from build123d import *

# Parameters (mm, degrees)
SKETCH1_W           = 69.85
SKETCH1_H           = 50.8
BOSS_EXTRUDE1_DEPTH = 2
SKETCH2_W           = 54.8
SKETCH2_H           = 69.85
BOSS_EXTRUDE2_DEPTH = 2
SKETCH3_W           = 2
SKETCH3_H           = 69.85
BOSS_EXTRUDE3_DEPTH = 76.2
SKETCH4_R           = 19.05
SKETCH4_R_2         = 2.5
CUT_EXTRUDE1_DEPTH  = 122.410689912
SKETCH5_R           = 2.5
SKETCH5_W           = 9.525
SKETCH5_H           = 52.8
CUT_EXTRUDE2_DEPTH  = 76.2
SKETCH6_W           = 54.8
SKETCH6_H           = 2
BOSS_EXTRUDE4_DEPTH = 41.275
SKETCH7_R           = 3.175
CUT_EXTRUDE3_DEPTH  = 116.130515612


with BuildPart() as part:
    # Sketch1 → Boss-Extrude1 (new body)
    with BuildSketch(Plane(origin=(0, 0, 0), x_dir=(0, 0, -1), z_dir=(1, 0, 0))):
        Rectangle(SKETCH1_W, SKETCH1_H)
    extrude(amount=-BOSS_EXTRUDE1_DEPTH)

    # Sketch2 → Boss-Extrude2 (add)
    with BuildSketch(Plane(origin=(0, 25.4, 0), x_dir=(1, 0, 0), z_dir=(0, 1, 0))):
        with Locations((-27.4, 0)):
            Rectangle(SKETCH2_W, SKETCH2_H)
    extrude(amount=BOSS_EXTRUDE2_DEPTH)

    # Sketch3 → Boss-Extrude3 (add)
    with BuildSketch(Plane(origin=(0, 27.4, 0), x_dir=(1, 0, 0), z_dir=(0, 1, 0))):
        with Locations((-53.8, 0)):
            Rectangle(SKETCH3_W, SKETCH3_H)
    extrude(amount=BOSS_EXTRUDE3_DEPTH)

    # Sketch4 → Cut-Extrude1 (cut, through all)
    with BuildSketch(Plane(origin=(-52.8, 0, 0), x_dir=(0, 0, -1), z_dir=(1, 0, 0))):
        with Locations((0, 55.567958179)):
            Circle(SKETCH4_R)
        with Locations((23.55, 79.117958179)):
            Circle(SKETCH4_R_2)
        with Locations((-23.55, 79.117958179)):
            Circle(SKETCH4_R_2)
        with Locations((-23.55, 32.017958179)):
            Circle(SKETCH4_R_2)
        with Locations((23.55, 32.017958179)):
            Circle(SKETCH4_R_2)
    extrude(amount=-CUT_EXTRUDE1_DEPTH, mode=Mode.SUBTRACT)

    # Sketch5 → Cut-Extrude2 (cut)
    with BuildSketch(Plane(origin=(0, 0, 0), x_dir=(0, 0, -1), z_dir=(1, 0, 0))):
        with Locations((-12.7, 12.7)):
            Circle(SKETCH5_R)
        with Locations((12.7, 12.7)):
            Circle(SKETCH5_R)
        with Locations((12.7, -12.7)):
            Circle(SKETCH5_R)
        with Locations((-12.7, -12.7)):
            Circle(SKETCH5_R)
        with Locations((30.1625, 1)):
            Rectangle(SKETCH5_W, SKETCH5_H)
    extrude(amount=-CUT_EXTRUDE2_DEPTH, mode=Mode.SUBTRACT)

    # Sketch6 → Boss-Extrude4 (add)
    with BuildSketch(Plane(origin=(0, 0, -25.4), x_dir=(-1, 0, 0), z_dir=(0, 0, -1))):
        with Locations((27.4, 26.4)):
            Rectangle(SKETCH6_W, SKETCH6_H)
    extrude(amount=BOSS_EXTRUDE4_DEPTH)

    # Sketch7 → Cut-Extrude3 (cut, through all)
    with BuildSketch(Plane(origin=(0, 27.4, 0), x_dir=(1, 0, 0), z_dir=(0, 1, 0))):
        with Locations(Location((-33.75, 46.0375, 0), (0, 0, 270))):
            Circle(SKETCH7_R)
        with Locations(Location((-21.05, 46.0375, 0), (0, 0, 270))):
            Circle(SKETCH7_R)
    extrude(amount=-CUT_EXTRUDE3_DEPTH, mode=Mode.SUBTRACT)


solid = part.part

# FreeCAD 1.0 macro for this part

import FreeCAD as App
import Part
import Sketcher
from FreeCAD import Vector
Q = App.Units.Quantity


def add_polygon(sketch, points):
    """Adds a closed chain of lines whose ends are joined by coincident constraints."""
    first, n = sketch.GeometryCount, len(points)
    for a, b in zip(points, points[1:] + points[:1]):
        sketch.addGeometry(Part.LineSegment(App.Vector(*a, 0), App.Vector(*b, 0)), False)
    for i in range(n):
        sketch.addConstraint(Sketcher.Constraint("Coincident", first + i, 2, first + (i + 1) % n, 1))

doc = App.newDocument("Part")
body = doc.addObject("PartDesign::Body", "Body")

# Sketch on YZ plane
sketch1 = body.newObject("Sketcher::SketchObject", "Sketch")
sketch1.AttachmentSupport = (doc.getObject("YZ_Plane"), [""])
sketch1.MapMode = "FlatFace"
add_polygon(sketch1, [(25.4, 34.925), (-25.4, 34.925), (-25.4, -34.925), (25.4, -34.925)])  # lines 0-3
sketch1.addConstraint([
    Sketcher.Constraint("Horizontal", 0),
    Sketcher.Constraint("Vertical", 1),
    Sketcher.Constraint("Horizontal", 2),
    Sketcher.Constraint("Vertical", 3),
    Sketcher.Constraint("Symmetric", 0, 2, 2, 2, -1, 1),
    Sketcher.Constraint("DistanceX", 0, 2, 0, 1, Q("2 in")),
    Sketcher.Constraint("DistanceY", 1, 2, 1, 1, Q("2.75 in")),
])
pad1 = body.newObject("PartDesign::Pad", "Pad")
pad1.Profile = sketch1
pad1.Length = 2
pad1.Reversed = True

# Sketch on XZ plane
sketch2 = body.newObject("Sketcher::SketchObject", "Sketch001")
sketch2.AttachmentSupport = (doc.getObject("XZ_Plane"), [""])
sketch2.MapMode = "FlatFace"
sketch2.AttachmentOffset = App.Placement(Vector(0, 0, -1 * 25.4), App.Rotation())
add_polygon(sketch2, [(-54.8, -34.925), (-54.8, 34.925), (0, 34.925), (0, -34.925)])  # lines 0-3
sketch2.addConstraint([
    Sketcher.Constraint("Vertical", 0),
    Sketcher.Constraint("Horizontal", 1),
    Sketcher.Constraint("Vertical", 2),
    Sketcher.Constraint("Horizontal", 3),
    Sketcher.Constraint("Symmetric", 1, 2, 2, 2, -1, 1),
    Sketcher.Constraint("DistanceY", 0, 1, 0, 2, Q("2.75 in")),
    Sketcher.Constraint("DistanceX", 1, 1, 1, 2, Q("54.8 mm")),
])
pad2 = body.newObject("PartDesign::Pad", "Pad001")
pad2.Profile = sketch2
pad2.Length = 2
pad2.Reversed = True

# Sketch on XZ plane
sketch3 = body.newObject("Sketcher::SketchObject", "Sketch002")
sketch3.AttachmentSupport = (doc.getObject("XZ_Plane"), [""])
sketch3.MapMode = "FlatFace"
sketch3.AttachmentOffset = App.Placement(Vector(0, 0, -27.4), App.Rotation())
add_polygon(sketch3, [(-54.8, -34.925), (-54.8, 34.925), (-52.8, 34.925), (-52.8, -34.925)])  # lines 0-3
sketch3.addConstraint([
    Sketcher.Constraint("Vertical", 0),
    Sketcher.Constraint("Horizontal", 1),
    Sketcher.Constraint("Vertical", 2),
    Sketcher.Constraint("Horizontal", 3),
    Sketcher.Constraint("DistanceY", 0, 1, 0, 2, Q("2.75 in")),
    Sketcher.Constraint("DistanceY", -1, 1, 0, 2, Q("1.375 in")),
    Sketcher.Constraint("DistanceX", 1, 1, 1, 2, Q("2 mm")),
    Sketcher.Constraint("DistanceX", 0, 2, -1, 1, Q("54.8 mm")),
])
pad3 = body.newObject("PartDesign::Pad", "Pad002")
pad3.Profile = sketch3
pad3.Length = Q("3 in")
pad3.Reversed = True

# Sketch on YZ plane
sketch4 = body.newObject("Sketcher::SketchObject", "Sketch003")
sketch4.AttachmentSupport = (doc.getObject("YZ_Plane"), [""])
sketch4.MapMode = "FlatFace"
sketch4.AttachmentOffset = App.Placement(Vector(0, 0, -52.8), App.Rotation())
sketch4.addGeometry([
    Part.Circle(Vector(55.567958, 0, 0), Vector(0, 0, 1), 19.05),  # 0
    Part.Circle(Vector(79.117958, -23.55, 0), Vector(0, 0, 1), 2.5),  # 1
    Part.Circle(Vector(79.117958, 23.55, 0), Vector(0, 0, 1), 2.5),  # 2
    Part.Circle(Vector(32.017958, 23.55, 0), Vector(0, 0, 1), 2.5),  # 3
    Part.Circle(Vector(32.017958, -23.55, 0), Vector(0, 0, 1), 2.5),  # 4
], False)
sketch4.addConstraint([
    Sketcher.Constraint("Equal", 1, 2),
    Sketcher.Constraint("Equal", 2, 3),
    Sketcher.Constraint("Equal", 3, 4),
    Sketcher.Constraint("Symmetric", 1, 3, 2, 3, -1),
    Sketcher.Constraint("Symmetric", 3, 3, 4, 3, -1),
    Sketcher.Constraint("PointOnObject", 0, 3, -1),
    Sketcher.Constraint("Horizontal", 2, 3, 3, 3),
    Sketcher.Constraint("Diameter", 0, Q("1.5 in")),
    Sketcher.Constraint("Diameter", 1, Q("5 mm")),
    Sketcher.Constraint("DistanceY", 1, 3, -1, 1, Q("23.55 mm")),
    Sketcher.Constraint("DistanceX", 0, 3, 1, 3, Q("23.55 mm")),
    Sketcher.Constraint("DistanceX", 3, 3, 0, 3, Q("23.55 mm")),
    Sketcher.Constraint("DistanceX", -1, 1, 0, 3, Q("55.567958 mm")),
])
pocket1 = body.newObject("PartDesign::Pocket", "Pocket")
pocket1.Profile = sketch4
pocket1.Type = "ThroughAll"

# Sketch on YZ plane
sketch5 = body.newObject("Sketcher::SketchObject", "Sketch004")
sketch5.AttachmentSupport = (doc.getObject("YZ_Plane"), [""])
sketch5.MapMode = "FlatFace"
sketch5.addGeometry(Part.Circle(Vector(12.7, 12.7, 0), Vector(0, 0, 1), 2.5), False)  # 0
sketch5.addGeometry(Part.Circle(Vector(12.7, -12.7, 0), Vector(0, 0, 1), 2.5), False)  # 1
sketch5.addGeometry(Part.Circle(Vector(-12.7, -12.7, 0), Vector(0, 0, 1), 2.5), False)  # 2
sketch5.addGeometry(Part.Circle(Vector(-12.7, 12.7, 0), Vector(0, 0, 1), 2.5), False)  # 3
add_polygon(sketch5, [(27.4, -25.4), (-25.4, -25.4), (-25.4, -34.925), (27.4, -34.925)])  # lines 4-7
sketch5.addConstraint([
    Sketcher.Constraint("Horizontal", 4),
    Sketcher.Constraint("Vertical", 5),
    Sketcher.Constraint("Horizontal", 6),
    Sketcher.Constraint("Vertical", 7),
    Sketcher.Constraint("Equal", 0, 1),
    Sketcher.Constraint("Equal", 1, 2),
    Sketcher.Constraint("Equal", 2, 3),
    Sketcher.Constraint("Symmetric", 0, 3, 2, 3, -1, 1),
    Sketcher.Constraint("Symmetric", 1, 3, 3, 3, -1, 1),
    Sketcher.Constraint("Symmetric", 1, 3, 2, 3, -2),
    Sketcher.Constraint("DistanceX", 4, 2, -1, 1, Q("1 in")),
    Sketcher.Constraint("DistanceY", 4, 2, -1, 1, Q("1 in")),
    Sketcher.Constraint("DistanceY", 1, 3, 0, 3, Q("1 in")),
    Sketcher.Constraint("DistanceX", 2, 3, 1, 3, Q("1 in")),
    Sketcher.Constraint("Diameter", 0, Q("5 mm")),
    Sketcher.Constraint("DistanceY", 5, 2, 5, 1, Q("0.375 in")),
    Sketcher.Constraint("DistanceX", 4, 2, 4, 1, Q("52.8 mm")),
])
pocket2 = body.newObject("PartDesign::Pocket", "Pocket001")
pocket2.Profile = sketch5
pocket2.Length = Q("3 in")

# Sketch on XY plane
sketch6 = body.newObject("Sketcher::SketchObject", "Sketch005")
sketch6.AttachmentSupport = (doc.getObject("XY_Plane"), [""])
sketch6.MapMode = "FlatFace"
sketch6.AttachmentOffset = App.Placement(Vector(0, 0, -1 * 25.4), App.Rotation())
add_polygon(sketch6, [(0, 27.4), (0, 25.4), (-54.8, 25.4), (-54.8, 27.4)])  # lines 0-3
sketch6.addConstraint([
    Sketcher.Constraint("Vertical", 0),
    Sketcher.Constraint("Horizontal", 1),
    Sketcher.Constraint("Vertical", 2),
    Sketcher.Constraint("Horizontal", 3),
    Sketcher.Constraint("PointOnObject", 0, 2, -2),
    Sketcher.Constraint("DistanceY", -1, 1, 0, 2, Q("1 in")),
    Sketcher.Constraint("DistanceX", 1, 2, 1, 1, Q("54.8 mm")),
    Sketcher.Constraint("DistanceY", 0, 2, 0, 1, Q("2 mm")),
])
pad4 = body.newObject("PartDesign::Pad", "Pad003")
pad4.Profile = sketch6
pad4.Length = Q("1.625 in")
pad4.Reversed = True

# Sketch on XZ plane
sketch7 = body.newObject("Sketcher::SketchObject", "Sketch006")
sketch7.AttachmentSupport = (doc.getObject("XZ_Plane"), [""])
sketch7.MapMode = "FlatFace"
sketch7.AttachmentOffset = App.Placement(Vector(0, 0, -27.4), App.Rotation())
sketch7.addGeometry([
    Part.Circle(Vector(-33.75, -46.0375, 0), Vector(0, 0, 1), 3.175),
    Part.Circle(Vector(-21.05, -46.0375, 0), Vector(0, 0, 1), 3.175),
], False)
sketch7.addConstraint([
    Sketcher.Constraint("Equal", 0, 1),
    Sketcher.Constraint("Horizontal", 0, 3, 1, 3),
    Sketcher.Constraint("Diameter", 0, Q("0.25 in")),
    Sketcher.Constraint("DistanceX", 0, 3, 1, 3, Q("0.5 in")),
    Sketcher.Constraint("DistanceY", 0, 3, -1, 1, Q("1.8125 in")),
    Sketcher.Constraint("DistanceX", 0, 3, -1, 1, Q("33.75 mm")),
])
pocket3 = body.newObject("PartDesign::Pocket", "Pocket002")
pocket3.Profile = sketch7
pocket3.Type = "ThroughAll"
pocket3.Reversed = True

doc.recompute()
